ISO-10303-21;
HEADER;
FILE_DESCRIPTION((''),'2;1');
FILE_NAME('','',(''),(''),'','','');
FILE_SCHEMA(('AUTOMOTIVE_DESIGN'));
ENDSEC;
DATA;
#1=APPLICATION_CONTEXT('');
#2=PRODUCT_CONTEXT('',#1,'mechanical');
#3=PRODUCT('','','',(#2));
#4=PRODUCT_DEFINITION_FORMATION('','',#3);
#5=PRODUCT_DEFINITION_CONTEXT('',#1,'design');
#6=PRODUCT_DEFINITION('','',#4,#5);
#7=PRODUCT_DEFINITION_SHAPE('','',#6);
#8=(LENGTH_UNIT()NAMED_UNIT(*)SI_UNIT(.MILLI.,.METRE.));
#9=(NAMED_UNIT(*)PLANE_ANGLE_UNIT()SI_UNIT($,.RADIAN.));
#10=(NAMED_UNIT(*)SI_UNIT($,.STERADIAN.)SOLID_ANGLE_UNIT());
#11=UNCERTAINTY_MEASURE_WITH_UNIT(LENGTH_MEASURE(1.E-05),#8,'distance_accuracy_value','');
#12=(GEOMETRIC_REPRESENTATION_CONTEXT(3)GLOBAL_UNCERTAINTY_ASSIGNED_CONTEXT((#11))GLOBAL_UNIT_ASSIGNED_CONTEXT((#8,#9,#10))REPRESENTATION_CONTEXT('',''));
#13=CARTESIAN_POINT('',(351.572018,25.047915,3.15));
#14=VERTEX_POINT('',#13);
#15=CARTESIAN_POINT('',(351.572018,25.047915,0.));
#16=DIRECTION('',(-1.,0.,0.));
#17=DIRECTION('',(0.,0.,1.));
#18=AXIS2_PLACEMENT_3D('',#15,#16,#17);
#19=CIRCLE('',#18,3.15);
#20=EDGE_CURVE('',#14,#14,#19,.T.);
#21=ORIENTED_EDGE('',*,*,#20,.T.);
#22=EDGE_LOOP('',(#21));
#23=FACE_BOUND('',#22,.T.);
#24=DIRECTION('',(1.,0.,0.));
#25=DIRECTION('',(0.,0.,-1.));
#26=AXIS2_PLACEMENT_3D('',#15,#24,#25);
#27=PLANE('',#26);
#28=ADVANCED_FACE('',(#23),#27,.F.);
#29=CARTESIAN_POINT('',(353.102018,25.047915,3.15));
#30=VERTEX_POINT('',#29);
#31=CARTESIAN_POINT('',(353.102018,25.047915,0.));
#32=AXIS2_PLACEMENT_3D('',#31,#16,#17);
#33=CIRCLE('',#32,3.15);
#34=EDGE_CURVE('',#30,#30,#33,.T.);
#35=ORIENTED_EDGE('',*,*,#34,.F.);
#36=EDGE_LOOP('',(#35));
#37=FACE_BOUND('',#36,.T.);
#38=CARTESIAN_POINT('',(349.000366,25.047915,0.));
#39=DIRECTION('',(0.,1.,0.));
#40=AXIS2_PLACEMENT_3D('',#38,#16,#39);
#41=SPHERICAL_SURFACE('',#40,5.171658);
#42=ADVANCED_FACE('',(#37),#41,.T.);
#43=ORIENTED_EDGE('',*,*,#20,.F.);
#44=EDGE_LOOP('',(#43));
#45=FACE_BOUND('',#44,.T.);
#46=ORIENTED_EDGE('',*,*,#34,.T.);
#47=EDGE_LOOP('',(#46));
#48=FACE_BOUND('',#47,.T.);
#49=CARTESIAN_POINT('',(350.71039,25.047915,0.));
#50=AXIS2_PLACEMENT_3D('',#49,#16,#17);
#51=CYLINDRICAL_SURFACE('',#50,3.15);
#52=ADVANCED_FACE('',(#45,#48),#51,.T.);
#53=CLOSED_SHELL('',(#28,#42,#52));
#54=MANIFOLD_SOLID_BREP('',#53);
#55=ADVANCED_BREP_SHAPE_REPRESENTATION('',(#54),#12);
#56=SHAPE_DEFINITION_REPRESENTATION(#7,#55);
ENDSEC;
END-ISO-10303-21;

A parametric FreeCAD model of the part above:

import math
import FreeCAD as App
import Part
import Sketcher
from FreeCAD import Vector

doc = App.newDocument("Part")
body = doc.addObject("PartDesign::Body", "Body")

# Sketch on XY plane
sketch1 = doc.addObject("Sketcher::SketchObject", "Sketch")
body.addObject(sketch1)
sketch1.AttachmentSupport = (doc.XY_Plane, [""])
sketch1.MapMode = "FlatFace"
sketch1.addGeometry(Part.LineSegment(Vector(351.6, 28.2, 0), Vector(351.6, 25, 0)), False)
sketch1.addGeometry(Part.LineSegment(Vector(351.6, 25, 0), Vector(354.2, 25, 0)), False)
sketch1.addGeometry(Part.ArcOfCircle(Part.Circle(Vector(349, 25, 0), Vector(0, 0, 1), 5.2), math.radians(0), math.radians(38)), False)
sketch1.addGeometry(Part.LineSegment(Vector(353.1, 28.2, 0), Vector(351.6, 28.2, 0)), False)
sketch1.addGeometry(Part.LineSegment(Vector(349, 25, 0), Vector(354.2, 25, 0)), True)  # axis
sketch1.addConstraint(Sketcher.Constraint("Coincident", 0, 2, 1, 1))
sketch1.addConstraint(Sketcher.Constraint("Coincident", 1, 2, 2, 1))
sketch1.addConstraint(Sketcher.Constraint("Coincident", 2, 2, 3, 1))
sketch1.addConstraint(Sketcher.Constraint("Coincident", 3, 2, 0, 1))
sketch1.addConstraint(Sketcher.Constraint("Vertical", 0))
sketch1.addConstraint(Sketcher.Constraint("Horizontal", 1))
sketch1.addConstraint(Sketcher.Constraint("Horizontal", 3))
sketch1.addConstraint(Sketcher.Constraint("Horizontal", 4))
sketch1.addConstraint(Sketcher.Constraint("Coincident", 4, 1, 2, 3))
sketch1.addConstraint(Sketcher.Constraint("Coincident", 4, 2, 1, 2))
sketch1.addConstraint(Sketcher.Constraint("DistanceX", 3, 2, 3, 1, 1.53))
sketch1.addConstraint(Sketcher.Constraint("DistanceY", 0, 2, 0, 1, 3.15))
sketch1.addConstraint(Sketcher.Constraint("Radius", 2, 5.171658))
sketch1.addConstraint(Sketcher.Constraint("DistanceX", -1, 1, 2, 3, 349.000366))
sketch1.addConstraint(Sketcher.Constraint("DistanceY", -1, 1, 2, 3, 25.047915))
revolution = doc.addObject("PartDesign::Revolution", "Revolution")
body.addObject(revolution)
revolution.Profile = sketch1
revolution.ReferenceAxis = (sketch1, ["Axis0"])
revolution.Angle = 360

doc.recompute()
